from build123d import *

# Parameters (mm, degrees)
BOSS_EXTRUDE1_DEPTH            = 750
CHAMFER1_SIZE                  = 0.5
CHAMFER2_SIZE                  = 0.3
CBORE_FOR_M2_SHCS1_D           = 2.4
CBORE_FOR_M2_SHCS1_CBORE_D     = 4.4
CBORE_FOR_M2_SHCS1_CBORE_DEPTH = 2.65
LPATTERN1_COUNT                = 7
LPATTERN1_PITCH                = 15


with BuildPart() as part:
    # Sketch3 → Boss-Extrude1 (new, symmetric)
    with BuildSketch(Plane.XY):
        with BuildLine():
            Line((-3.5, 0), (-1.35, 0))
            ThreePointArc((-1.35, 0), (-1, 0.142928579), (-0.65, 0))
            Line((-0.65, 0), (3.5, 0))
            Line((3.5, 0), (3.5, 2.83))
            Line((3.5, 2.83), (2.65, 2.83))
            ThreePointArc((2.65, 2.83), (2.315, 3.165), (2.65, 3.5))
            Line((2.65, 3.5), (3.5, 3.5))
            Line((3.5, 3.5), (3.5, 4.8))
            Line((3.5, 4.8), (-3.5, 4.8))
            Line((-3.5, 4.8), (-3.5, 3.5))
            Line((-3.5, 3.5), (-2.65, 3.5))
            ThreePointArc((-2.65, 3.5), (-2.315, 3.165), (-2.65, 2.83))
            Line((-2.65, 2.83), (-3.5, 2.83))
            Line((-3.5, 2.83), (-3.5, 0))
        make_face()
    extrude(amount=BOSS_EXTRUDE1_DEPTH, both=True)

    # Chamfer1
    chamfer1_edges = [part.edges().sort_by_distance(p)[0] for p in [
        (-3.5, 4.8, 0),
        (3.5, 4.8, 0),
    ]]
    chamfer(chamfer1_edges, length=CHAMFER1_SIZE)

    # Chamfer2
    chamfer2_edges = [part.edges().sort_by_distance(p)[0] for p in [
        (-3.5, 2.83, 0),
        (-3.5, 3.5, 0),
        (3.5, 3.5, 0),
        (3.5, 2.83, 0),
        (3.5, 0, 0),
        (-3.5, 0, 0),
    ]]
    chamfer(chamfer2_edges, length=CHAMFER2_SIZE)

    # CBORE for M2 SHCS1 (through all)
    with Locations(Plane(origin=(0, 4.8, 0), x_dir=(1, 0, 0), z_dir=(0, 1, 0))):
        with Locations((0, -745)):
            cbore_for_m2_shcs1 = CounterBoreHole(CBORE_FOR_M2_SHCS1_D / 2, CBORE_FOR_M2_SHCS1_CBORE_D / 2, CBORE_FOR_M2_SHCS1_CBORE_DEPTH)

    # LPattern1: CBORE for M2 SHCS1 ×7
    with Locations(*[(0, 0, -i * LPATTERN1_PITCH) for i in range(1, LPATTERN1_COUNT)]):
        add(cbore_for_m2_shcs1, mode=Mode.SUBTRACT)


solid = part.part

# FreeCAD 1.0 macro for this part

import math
import FreeCAD as App
import Part
import Sketcher
from FreeCAD import Vector
Q = App.Units.Quantity


def edges_at(feature, points):
    """Names of the edges that pass closest to the given points."""
    edges = feature.Shape.Edges
    near = lambda p: min(range(len(edges)), key=lambda i: edges[i].distToShape(Part.Vertex(*p))[0])
    return sorted({f"Edge{near(p) + 1}" for p in points})

doc = App.newDocument("Part")
params = doc.addObject("Spreadsheet::Sheet", "Params")
for row, (alias, value) in enumerate([
    ("sketch1_radius", "0.5 mm"),
    ("sketch1_width", "7 mm"),
    ("sketch1_height", "1.3 mm"),
    ("sketch1_width2", "2.15 mm"),
    ("sketch1_height2", "2.83 mm"),
    ("pad1_length", "1500 mm"),
    ("chamfer_size", "0.5 mm"),
    ("chamfer2_size", "0.3 mm"),
    ("sketch2_diameter", "2.4 mm"),
    ("hole_diameter", "2.4 mm"),
    ("hole_cbore_diameter", "4.4 mm"),
    ("hole_cbore_depth", "2.65 mm"),
    ("linearpattern_pitch", "15 mm"),
], start=1):
    params.set(f"A{row}", alias)
    params.set(f"B{row}", "=" + value)
    params.setAlias(f"B{row}", alias)

body = doc.addObject("PartDesign::Body", "Body")

sketch1 = body.newObject("Sketcher::SketchObject", "Sketch")
sketch1.AttachmentSupport = (doc.getObject("XY_Plane"), [""])
sketch1.MapMode = "FlatFace"
sketch1.addGeometry([
    Part.LineSegment(Vector(-3.5, 0, 0), Vector(-1.35, 0, 0)),
    Part.ArcOfCircle(Part.Circle(Vector(-1, -0.36, 0), Vector(0, 0, 1), 0.5), math.radians(46), math.radians(134)),
    Part.LineSegment(Vector(-0.65, 0, 0), Vector(3.5, 0, 0)),
    Part.LineSegment(Vector(3.5, 0, 0), Vector(3.5, 2.83, 0)),
    Part.LineSegment(Vector(3.5, 2.83, 0), Vector(2.65, 2.83, 0)),
    Part.ArcOfCircle(Part.Circle(Vector(2.65, 3.17, 0), Vector(0, 0, 1), 0.34), math.radians(90), math.radians(270)),
    Part.LineSegment(Vector(2.65, 3.5, 0), Vector(3.5, 3.5, 0)),
    Part.LineSegment(Vector(3.5, 3.5, 0), Vector(3.5, 4.8, 0)),
    Part.LineSegment(Vector(3.5, 4.8, 0), Vector(-3.5, 4.8, 0)),
    Part.LineSegment(Vector(-3.5, 4.8, 0), Vector(-3.5, 3.5, 0)),
    Part.LineSegment(Vector(-3.5, 3.5, 0), Vector(-2.65, 3.5, 0)),
    Part.ArcOfCircle(Part.Circle(Vector(-2.65, 3.17, 0), Vector(0, 0, 1), 0.34), math.radians(-90), math.radians(90)),
    Part.LineSegment(Vector(-2.65, 2.83, 0), Vector(-3.5, 2.83, 0)),
    Part.LineSegment(Vector(-3.5, 2.83, 0), Vector(-3.5, 0, 0)),
], False)
sketch1.addConstraint([
    Sketcher.Constraint("Coincident", 0, 2, 1, 2),
    Sketcher.Constraint("Coincident", 1, 1, 2, 1),
    Sketcher.Constraint("Coincident", 2, 2, 3, 1),
    Sketcher.Constraint("Coincident", 3, 2, 4, 1),
    Sketcher.Constraint("Tangent", 4, 2, 5, 2),
    Sketcher.Constraint("Tangent", 5, 1, 6, 1),
    Sketcher.Constraint("Coincident", 6, 2, 7, 1),
    Sketcher.Constraint("Coincident", 7, 2, 8, 1),
    Sketcher.Constraint("Coincident", 8, 2, 9, 1),
    Sketcher.Constraint("Coincident", 9, 2, 10, 1),
    Sketcher.Constraint("Tangent", 10, 2, 11, 2),
    Sketcher.Constraint("Tangent", 11, 1, 12, 1),
    Sketcher.Constraint("Coincident", 12, 2, 13, 1),
    Sketcher.Constraint("Coincident", 13, 2, 0, 1),
    Sketcher.Constraint("Horizontal", 0),
    Sketcher.Constraint("Horizontal", 2),
    Sketcher.Constraint("Vertical", 3),
    Sketcher.Constraint("Horizontal", 4),
    Sketcher.Constraint("Horizontal", 6),
    Sketcher.Constraint("Vertical", 7),
    Sketcher.Constraint("Horizontal", 8),
    Sketcher.Constraint("Vertical", 9),
    Sketcher.Constraint("Horizontal", 10),
    Sketcher.Constraint("Horizontal", 12),
    Sketcher.Constraint("Vertical", 13),
    Sketcher.Constraint("Equal", 5, 11),
    Sketcher.Constraint("Symmetric", 2, 2, 13, 2, -1, 1),
    Sketcher.Constraint("Symmetric", 5, 3, 11, 3, -2),
    Sketcher.Constraint("PointOnObject", 0, 2, -1),
    Sketcher.Constraint("Vertical", 3, 2, 6, 2),
    Sketcher.Constraint("Vertical", 9, 2, 12, 2),
    Sketcher.Constraint("Radius", 1, Q("0.5 mm")),
    Sketcher.Constraint("DistanceX", 8, 2, 8, 1, Q("7 mm")),
    Sketcher.Constraint("DistanceY", 7, 1, 7, 2, Q("1.3 mm")),
    Sketcher.Constraint("DistanceX", 1, 3, -1, 1, Q("1 mm")),
    Sketcher.Constraint("Radius", 5, Q("0.335 mm")),
    Sketcher.Constraint("DistanceX", 0, 2, 5, 3, Q("4 mm")),
    Sketcher.Constraint("DistanceX", 0, 1, 0, 2, Q("2.15 mm")),
    Sketcher.Constraint("DistanceY", 3, 1, 3, 2, Q("2.83 mm")),
])
sketch1.setExpression("Constraints[31]", "Params.sketch1_radius")
sketch1.setExpression("Constraints[32]", "Params.sketch1_width")
sketch1.setExpression("Constraints[33]", "Params.sketch1_height")
sketch1.setExpression("Constraints[37]", "Params.sketch1_width2")
sketch1.setExpression("Constraints[38]", "Params.sketch1_height2")
pad1 = body.newObject("PartDesign::Pad", "Pad")
pad1.Profile = sketch1
pad1.setExpression("Length", "Params.pad1_length")
pad1.Midplane = True
doc.recompute()

chamfer = body.newObject("PartDesign::Chamfer", "Chamfer")
chamfer.Base = (pad1, edges_at(pad1, [(-3.5, 4.8, 0), (3.5, 4.8, 0)]))
chamfer.setExpression("Size", "Params.chamfer_size")
doc.recompute()

chamfer2 = body.newObject("PartDesign::Chamfer", "Chamfer001")
chamfer2.Base = (chamfer, edges_at(chamfer, [
    (-3.5, 2.83, 0),
    (-3.5, 3.5, 0),
    (3.5, 3.5, 0),
    (3.5, 2.83, 0),
    (3.5, 0, 0),
    (-3.5, 0, 0),
]))
chamfer2.setExpression("Size", "Params.chamfer2_size")

sketch2 = body.newObject("Sketcher::SketchObject", "Sketch001")
sketch2.AttachmentSupport = (doc.getObject("XZ_Plane"), [""])
sketch2.MapMode = "FlatFace"
sketch2.AttachmentOffset = App.Placement(Vector(0, 0, -4.8), App.Rotation())
sketch2.addGeometry(Part.Circle(Vector(0, 745, 0), Vector(0, 0, 1), 1.2), False)
sketch2.addConstraint([
    Sketcher.Constraint("PointOnObject", 0, 3, -2),
    Sketcher.Constraint("Diameter", 0, Q("2.4 mm")),
    Sketcher.Constraint("DistanceY", -1, 1, 0, 3, Q("745 mm")),
])
sketch2.setExpression("Constraints[1]", "Params.sketch2_diameter")
doc.recompute()
hole = body.newObject("PartDesign::Hole", "Hole")
hole.Profile = sketch2
hole.ThreadType = "None"
hole.setExpression("Diameter", "Params.hole_diameter")
hole.DepthType = "ThroughAll"
hole.HoleCutType = "Counterbore"
hole.setExpression("HoleCutDiameter", "Params.hole_cbore_diameter")
hole.setExpression("HoleCutDepth", "Params.hole_cbore_depth")
hole.Reversed = True
doc.recompute()

linearpattern = body.newObject("PartDesign::LinearPattern", "LinearPattern")
linearpattern.Originals = [hole]
linearpattern.Direction = (doc.getObject("Z_Axis"), [""])
linearpattern.Mode = "offset"
linearpattern.setExpression("Offset", "Params.linearpattern_pitch")
linearpattern.Occurrences = 7
linearpattern.Reversed = True
body.Tip = linearpattern

doc.recompute()
